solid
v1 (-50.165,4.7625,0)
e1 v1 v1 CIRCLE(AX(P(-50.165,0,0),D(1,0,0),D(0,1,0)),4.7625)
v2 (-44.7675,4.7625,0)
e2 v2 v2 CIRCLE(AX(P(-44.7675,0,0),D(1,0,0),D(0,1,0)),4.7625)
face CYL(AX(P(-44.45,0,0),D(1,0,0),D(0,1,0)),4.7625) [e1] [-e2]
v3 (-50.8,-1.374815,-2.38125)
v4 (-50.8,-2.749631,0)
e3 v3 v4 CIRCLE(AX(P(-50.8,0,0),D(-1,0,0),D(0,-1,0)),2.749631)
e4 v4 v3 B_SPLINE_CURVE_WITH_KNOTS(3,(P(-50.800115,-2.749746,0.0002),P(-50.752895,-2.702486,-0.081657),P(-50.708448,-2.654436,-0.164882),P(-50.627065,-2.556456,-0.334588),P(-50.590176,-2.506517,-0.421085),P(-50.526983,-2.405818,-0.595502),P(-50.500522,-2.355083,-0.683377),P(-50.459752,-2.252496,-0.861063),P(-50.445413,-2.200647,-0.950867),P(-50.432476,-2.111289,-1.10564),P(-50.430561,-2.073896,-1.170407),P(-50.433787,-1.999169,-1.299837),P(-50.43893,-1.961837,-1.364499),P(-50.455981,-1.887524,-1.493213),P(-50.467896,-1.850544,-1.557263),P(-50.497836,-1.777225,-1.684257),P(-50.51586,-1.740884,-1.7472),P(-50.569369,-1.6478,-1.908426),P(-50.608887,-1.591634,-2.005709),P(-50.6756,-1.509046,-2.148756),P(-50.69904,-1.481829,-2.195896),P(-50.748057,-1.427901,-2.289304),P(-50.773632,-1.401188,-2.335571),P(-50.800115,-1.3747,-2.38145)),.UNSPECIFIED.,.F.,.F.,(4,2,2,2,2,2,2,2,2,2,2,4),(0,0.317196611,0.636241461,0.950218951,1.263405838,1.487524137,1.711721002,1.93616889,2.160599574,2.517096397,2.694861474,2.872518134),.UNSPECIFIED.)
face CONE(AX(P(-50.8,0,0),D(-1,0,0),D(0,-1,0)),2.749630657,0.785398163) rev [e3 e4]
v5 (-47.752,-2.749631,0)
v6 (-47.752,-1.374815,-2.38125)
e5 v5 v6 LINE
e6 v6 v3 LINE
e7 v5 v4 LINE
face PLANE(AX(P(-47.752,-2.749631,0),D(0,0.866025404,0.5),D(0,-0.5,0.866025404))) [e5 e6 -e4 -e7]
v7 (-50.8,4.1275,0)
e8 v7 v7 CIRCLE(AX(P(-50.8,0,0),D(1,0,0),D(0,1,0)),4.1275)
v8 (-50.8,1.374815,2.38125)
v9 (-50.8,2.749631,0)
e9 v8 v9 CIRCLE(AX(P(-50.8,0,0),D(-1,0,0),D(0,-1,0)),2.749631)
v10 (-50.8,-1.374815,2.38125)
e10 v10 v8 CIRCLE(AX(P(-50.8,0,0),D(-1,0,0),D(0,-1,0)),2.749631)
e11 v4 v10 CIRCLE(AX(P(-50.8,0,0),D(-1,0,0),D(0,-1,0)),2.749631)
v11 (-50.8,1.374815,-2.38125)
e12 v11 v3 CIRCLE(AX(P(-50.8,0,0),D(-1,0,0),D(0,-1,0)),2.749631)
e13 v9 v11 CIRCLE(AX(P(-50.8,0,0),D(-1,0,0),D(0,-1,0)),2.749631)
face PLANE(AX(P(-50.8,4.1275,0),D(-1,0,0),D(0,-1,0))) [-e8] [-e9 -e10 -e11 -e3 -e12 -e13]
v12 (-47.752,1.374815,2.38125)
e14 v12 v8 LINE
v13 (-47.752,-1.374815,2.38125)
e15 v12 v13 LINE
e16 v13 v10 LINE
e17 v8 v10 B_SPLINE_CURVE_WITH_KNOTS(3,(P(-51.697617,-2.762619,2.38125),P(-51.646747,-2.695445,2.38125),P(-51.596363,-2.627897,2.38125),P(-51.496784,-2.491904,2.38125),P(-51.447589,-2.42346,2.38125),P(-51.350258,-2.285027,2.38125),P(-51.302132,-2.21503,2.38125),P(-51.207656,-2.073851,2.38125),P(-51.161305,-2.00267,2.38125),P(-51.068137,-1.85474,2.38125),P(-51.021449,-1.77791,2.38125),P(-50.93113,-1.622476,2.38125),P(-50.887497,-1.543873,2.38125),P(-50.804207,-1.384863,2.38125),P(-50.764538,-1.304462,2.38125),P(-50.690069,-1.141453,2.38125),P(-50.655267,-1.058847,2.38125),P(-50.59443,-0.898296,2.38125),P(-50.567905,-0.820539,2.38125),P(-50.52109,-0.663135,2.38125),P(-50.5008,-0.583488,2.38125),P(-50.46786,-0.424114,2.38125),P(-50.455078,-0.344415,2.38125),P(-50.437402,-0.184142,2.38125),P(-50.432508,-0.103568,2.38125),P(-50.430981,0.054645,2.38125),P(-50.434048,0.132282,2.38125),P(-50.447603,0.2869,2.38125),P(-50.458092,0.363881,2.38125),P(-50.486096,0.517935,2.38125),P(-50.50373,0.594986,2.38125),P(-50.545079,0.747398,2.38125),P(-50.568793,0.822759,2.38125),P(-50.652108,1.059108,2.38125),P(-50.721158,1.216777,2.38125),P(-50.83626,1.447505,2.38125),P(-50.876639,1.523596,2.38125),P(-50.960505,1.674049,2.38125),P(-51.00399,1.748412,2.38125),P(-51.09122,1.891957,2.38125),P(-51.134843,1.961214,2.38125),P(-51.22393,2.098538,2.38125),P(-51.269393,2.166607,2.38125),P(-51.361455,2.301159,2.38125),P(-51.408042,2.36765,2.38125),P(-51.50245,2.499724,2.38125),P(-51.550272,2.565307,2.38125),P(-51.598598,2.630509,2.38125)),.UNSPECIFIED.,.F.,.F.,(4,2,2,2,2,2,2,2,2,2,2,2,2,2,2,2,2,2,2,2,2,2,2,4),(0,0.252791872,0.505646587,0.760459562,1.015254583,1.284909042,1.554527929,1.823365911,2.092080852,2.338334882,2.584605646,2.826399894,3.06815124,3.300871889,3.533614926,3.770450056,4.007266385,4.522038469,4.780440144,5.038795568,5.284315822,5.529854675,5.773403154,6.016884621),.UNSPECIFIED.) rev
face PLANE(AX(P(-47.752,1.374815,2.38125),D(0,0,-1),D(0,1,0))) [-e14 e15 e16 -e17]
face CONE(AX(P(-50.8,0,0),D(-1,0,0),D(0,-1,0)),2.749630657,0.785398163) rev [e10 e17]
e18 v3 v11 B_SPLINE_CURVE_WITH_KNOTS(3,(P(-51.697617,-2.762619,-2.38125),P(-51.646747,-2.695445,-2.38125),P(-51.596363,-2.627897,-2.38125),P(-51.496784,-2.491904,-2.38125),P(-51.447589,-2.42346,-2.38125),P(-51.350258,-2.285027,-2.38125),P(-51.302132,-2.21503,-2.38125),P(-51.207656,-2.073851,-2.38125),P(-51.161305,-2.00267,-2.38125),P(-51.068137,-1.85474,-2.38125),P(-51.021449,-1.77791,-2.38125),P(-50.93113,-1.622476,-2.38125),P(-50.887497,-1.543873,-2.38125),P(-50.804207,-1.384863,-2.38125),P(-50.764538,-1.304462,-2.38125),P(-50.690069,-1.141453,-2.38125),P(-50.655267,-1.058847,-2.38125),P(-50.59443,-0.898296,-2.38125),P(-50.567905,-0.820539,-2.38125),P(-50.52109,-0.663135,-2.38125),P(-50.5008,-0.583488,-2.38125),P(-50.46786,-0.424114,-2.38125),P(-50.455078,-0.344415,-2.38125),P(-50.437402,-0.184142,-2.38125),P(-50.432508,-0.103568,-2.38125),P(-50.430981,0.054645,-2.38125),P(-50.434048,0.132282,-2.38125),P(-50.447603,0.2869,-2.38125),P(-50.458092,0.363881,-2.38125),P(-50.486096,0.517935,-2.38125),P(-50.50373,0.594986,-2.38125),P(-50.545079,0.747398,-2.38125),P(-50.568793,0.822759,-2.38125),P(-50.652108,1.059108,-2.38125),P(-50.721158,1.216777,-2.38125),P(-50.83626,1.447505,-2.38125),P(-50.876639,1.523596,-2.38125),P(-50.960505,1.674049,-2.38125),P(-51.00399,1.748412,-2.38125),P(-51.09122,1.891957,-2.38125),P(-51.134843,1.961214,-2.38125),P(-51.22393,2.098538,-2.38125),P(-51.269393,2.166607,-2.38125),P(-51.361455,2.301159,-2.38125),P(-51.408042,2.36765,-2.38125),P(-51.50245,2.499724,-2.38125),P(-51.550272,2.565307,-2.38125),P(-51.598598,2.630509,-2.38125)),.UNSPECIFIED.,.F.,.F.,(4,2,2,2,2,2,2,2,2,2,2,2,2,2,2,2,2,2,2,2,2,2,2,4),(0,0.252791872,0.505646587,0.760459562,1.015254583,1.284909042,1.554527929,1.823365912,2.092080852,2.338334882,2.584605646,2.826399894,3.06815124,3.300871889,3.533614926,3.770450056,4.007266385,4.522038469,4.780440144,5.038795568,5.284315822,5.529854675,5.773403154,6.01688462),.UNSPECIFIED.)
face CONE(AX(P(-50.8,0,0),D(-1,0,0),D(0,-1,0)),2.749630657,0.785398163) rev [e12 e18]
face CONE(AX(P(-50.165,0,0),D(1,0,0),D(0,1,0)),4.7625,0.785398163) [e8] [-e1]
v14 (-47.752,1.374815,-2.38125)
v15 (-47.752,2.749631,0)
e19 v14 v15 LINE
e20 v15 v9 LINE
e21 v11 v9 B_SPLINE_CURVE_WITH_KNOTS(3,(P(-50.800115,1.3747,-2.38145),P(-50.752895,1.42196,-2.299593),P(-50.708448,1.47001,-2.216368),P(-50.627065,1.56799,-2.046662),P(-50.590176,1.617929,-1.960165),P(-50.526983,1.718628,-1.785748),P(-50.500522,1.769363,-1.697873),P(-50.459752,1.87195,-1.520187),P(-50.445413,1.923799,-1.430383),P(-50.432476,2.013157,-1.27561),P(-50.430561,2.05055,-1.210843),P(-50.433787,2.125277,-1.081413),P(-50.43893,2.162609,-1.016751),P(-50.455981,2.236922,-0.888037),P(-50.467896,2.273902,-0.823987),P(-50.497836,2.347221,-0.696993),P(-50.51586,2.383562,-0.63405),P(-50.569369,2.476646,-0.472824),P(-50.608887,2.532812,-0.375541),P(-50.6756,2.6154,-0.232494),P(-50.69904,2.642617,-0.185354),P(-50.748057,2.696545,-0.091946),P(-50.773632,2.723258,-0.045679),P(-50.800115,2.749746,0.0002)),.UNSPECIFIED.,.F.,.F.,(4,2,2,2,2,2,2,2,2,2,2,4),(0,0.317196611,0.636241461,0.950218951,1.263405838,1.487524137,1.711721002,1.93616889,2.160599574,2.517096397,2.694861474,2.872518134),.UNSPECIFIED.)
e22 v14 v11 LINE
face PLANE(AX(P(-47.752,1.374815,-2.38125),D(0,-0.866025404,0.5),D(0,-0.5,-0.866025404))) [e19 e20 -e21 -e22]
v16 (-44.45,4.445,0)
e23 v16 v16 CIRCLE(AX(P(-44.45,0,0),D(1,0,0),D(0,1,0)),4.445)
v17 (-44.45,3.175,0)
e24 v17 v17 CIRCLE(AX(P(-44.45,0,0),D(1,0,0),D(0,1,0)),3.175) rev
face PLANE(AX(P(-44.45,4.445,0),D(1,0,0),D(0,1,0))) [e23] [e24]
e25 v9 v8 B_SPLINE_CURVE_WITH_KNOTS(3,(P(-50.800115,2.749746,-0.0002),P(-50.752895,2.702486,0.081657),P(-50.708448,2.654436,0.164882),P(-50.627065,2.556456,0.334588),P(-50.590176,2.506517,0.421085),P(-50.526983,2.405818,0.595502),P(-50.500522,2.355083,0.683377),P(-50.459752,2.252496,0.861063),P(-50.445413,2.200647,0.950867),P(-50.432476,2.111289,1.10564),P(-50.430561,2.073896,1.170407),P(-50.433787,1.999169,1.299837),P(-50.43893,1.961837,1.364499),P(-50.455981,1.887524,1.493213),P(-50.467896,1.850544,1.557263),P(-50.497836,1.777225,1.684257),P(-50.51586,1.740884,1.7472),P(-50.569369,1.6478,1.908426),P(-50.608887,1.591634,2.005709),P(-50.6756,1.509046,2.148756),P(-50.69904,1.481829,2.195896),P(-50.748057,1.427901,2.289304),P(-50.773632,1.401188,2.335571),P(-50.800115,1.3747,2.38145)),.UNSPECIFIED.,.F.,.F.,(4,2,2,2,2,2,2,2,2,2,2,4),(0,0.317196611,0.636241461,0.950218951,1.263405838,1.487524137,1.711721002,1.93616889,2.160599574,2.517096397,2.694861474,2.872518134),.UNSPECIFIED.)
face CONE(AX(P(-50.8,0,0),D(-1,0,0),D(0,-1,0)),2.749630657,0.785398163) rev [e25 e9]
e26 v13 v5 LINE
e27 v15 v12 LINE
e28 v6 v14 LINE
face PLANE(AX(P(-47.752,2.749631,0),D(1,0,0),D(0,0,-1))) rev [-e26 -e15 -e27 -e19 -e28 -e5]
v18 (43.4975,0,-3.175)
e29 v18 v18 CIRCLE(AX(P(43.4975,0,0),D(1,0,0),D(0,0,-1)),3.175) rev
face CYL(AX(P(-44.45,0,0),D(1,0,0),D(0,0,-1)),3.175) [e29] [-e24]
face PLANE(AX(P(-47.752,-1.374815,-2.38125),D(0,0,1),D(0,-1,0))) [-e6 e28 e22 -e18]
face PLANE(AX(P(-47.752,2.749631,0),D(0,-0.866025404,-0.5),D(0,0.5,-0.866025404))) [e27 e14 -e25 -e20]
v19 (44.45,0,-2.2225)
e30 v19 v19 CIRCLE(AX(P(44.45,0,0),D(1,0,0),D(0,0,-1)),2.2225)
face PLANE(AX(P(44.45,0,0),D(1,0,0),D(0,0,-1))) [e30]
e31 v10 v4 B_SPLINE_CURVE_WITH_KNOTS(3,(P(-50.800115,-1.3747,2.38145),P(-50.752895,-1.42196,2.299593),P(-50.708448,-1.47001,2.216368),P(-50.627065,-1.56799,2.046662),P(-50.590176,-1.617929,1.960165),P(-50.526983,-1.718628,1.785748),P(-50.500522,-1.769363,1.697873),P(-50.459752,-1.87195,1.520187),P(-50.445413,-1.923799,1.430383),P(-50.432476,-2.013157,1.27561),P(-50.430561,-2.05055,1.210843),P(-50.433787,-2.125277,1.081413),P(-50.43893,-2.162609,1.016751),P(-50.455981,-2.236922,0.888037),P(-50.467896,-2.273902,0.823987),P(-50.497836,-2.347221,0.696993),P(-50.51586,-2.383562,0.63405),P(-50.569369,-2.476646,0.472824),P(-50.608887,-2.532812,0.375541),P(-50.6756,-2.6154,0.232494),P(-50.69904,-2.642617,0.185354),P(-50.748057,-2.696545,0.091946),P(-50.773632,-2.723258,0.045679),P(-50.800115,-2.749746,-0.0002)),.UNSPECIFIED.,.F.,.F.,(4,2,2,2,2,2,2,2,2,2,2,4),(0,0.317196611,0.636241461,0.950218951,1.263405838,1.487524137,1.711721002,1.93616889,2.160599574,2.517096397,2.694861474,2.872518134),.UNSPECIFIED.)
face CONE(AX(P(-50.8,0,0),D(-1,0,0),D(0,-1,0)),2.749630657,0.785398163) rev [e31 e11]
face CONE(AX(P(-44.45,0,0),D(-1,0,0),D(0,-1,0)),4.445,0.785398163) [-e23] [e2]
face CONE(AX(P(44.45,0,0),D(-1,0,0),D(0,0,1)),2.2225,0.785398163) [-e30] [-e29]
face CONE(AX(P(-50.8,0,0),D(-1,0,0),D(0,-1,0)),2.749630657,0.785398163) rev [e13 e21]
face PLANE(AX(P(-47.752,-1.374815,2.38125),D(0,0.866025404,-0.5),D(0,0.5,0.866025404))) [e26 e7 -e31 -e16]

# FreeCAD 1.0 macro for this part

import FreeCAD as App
import Part
import Sketcher
from FreeCAD import Vector
Q = App.Units.Quantity


def edges_at(feature, points):
    """Names of the edges that pass closest to the given points."""
    edges = feature.Shape.Edges
    near = lambda p: min(range(len(edges)), key=lambda i: edges[i].distToShape(Part.Vertex(*p))[0])
    return sorted({f"Edge{near(p) + 1}" for p in points})


def add_polygon(sketch, points):
    """Adds a closed chain of lines whose ends are joined by coincident constraints."""
    first, n = sketch.GeometryCount, len(points)
    for a, b in zip(points, points[1:] + points[:1]):
        sketch.addGeometry(Part.LineSegment(App.Vector(*a, 0), App.Vector(*b, 0)), False)
    for i in range(n):
        sketch.addConstraint(Sketcher.Constraint("Coincident", first + i, 2, first + (i + 1) % n, 1))

doc = App.newDocument("Part")
body = doc.addObject("PartDesign::Body", "Body")

sketch1 = doc.addObject("Sketcher::SketchObject", "Sketch")
body.addObject(sketch1)
sketch1.AttachmentSupport = (doc.YZ_Plane, [""])
sketch1.MapMode = "FlatFace"
sketch1.AttachmentOffset = App.Placement(Vector(0, 0, 1.75 * 25.4), App.Rotation())
sketch1.addGeometry(Part.Circle(Vector(0, 0, 0), Vector(0, 0, 1), 3.2), False)
sketch1.addConstraint(Sketcher.Constraint("Coincident", 0, 3, -1, 1))
sketch1.addConstraint(Sketcher.Constraint("Diameter", 0, Q("0.25 in")))
pad1 = doc.addObject("PartDesign::Pad", "Pad")
body.addObject(pad1)
pad1.Profile = sketch1
pad1.Length = Q("3.5 in")
pad1.Reversed = True
doc.recompute()

chamfer = doc.addObject("PartDesign::Chamfer", "Chamfer")
body.addObject(chamfer)
chamfer.Base = (pad1, edges_at(pad1, [(44.45, 0, 3.175)]))
chamfer.Size = Q("0.0375 in")

sketch2 = doc.addObject("Sketcher::SketchObject", "Sketch001")
body.addObject(sketch2)
sketch2.AttachmentSupport = (doc.XY_Plane, [""])
sketch2.MapMode = "FlatFace"
add_polygon(sketch2, [(-50.16, 4.76), (-50.8, 4.13), (-50.8, 0), (-44.45, 0), (-44.45, 4.45), (-44.77, 4.76)])
sketch2.addConstraint(Sketcher.Constraint("Vertical", 1))
sketch2.addConstraint(Sketcher.Constraint("Horizontal", 2))
sketch2.addConstraint(Sketcher.Constraint("Vertical", 3))
sketch2.addConstraint(Sketcher.Constraint("Horizontal", 5))
sketch2.addConstraint(Sketcher.Constraint("PointOnObject", 1, 2, -1))
sketch2.addConstraint(Sketcher.Constraint("Perpendicular", 0, 4))
sketch2.addConstraint(Sketcher.Constraint("DistanceX", 0, 2, -1, 1, Q("2 in")))
sketch2.addConstraint(Sketcher.Constraint("Angle", 0, Q("-135 deg")))
sketch2.addConstraint(Sketcher.Constraint("DistanceX", 2, 1, 2, 2, Q("0.25 in")))
sketch2.addConstraint(Sketcher.Constraint("DistanceY", 3, 1, 3, 2, Q("0.175 in")))
sketch2.addConstraint(Sketcher.Constraint("DistanceX", 5, 2, 5, 1, Q("0.2125 in")))
sketch2.addConstraint(Sketcher.Constraint("DistanceY", 1, 2, 1, 1, Q("0.1625 in")))
revolution = doc.addObject("PartDesign::Revolution", "Revolution")
body.addObject(revolution)
revolution.Profile = sketch2
revolution.ReferenceAxis = (sketch2, ["H_Axis"])
revolution.Angle = 360

sketch3 = doc.addObject("Sketcher::SketchObject", "Sketch002")
body.addObject(sketch3)
sketch3.AttachmentSupport = (doc.YZ_Plane, [""])
sketch3.MapMode = "FlatFace"
sketch3.AttachmentOffset = App.Placement(Vector(0, 0, -2 * 25.4), App.Rotation())
add_polygon(sketch3, [(2.7, 0), (1.4, 2.4), (-1.4, 2.4), (-2.7, 0), (-1.4, -2.4), (1.4, -2.4)])
sketch3.addConstraint(Sketcher.Constraint("Horizontal", 1))
sketch3.addConstraint(Sketcher.Constraint("Horizontal", 4))
sketch3.addConstraint(Sketcher.Constraint("Symmetric", 0, 2, 3, 2, -1, 1))
sketch3.addConstraint(Sketcher.Constraint("Symmetric", 2, 2, 5, 2, -1, 1))
sketch3.addConstraint(Sketcher.Constraint("PointOnObject", 2, 2, -1))
sketch3.addConstraint(Sketcher.Constraint("Parallel", 2, 5))
sketch3.addConstraint(Sketcher.Constraint("Vertical", 1, 2, 3, 2))
sketch3.addConstraint(Sketcher.Constraint("Angle", 0, Q("120 deg")))
sketch3.addConstraint(Sketcher.Constraint("DistanceY", -1, 1, 0, 2, Q("0.09375 in")))
sketch3.addConstraint(Sketcher.Constraint("DistanceX", 1, 2, 1, 1, 2.749631))
pocket1 = doc.addObject("PartDesign::Pocket", "Pocket")
body.addObject(pocket1)
pocket1.Profile = sketch3
pocket1.Length = Q("0.12 in")
pocket1.Reversed = True

sketch4 = doc.addObject("Sketcher::SketchObject", "Sketch003")
body.addObject(sketch4)
sketch4.AttachmentSupport = (doc.YZ_Plane, [""])
sketch4.MapMode = "FlatFace"
sketch4.AttachmentOffset = App.Placement(Vector(0, 0, -2 * 25.4), App.Rotation())
sketch4.addGeometry(Part.Circle(Vector(0, 0, 0), Vector(0, 0, 1), 2.7), False)
sketch4.addConstraint(Sketcher.Constraint("Coincident", 0, 3, -1, 1))
sketch4.addConstraint(Sketcher.Constraint("Diameter", 0, 5.499261))
pocket2 = doc.addObject("PartDesign::Pocket", "Pocket001")
body.addObject(pocket2)
pocket2.Profile = sketch4
pocket2.Length = Q("0.05 in")
pocket2.Reversed = True
pocket2.TaperAngle = -45

doc.recompute()
